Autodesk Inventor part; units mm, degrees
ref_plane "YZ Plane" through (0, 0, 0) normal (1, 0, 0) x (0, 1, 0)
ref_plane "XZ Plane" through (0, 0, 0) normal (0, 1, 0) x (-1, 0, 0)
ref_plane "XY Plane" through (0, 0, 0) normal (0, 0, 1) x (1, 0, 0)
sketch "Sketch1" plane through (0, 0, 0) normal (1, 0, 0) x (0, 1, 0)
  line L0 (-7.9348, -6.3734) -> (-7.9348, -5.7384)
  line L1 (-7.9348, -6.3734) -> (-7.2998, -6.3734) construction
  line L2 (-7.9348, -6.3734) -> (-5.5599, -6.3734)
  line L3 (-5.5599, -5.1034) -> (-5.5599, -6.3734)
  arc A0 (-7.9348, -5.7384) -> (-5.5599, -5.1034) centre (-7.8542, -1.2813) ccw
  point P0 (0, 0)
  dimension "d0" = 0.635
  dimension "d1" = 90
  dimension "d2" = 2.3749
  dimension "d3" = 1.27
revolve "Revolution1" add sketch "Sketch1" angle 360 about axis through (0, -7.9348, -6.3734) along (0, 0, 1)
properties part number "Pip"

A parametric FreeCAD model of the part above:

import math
import FreeCAD as App
import Part
import Sketcher

V = App.Vector
Q = App.Units.Quantity

doc = App.newDocument("Part")
params = doc.addObject("Spreadsheet::Sheet", "Params")
for row, (alias, value) in enumerate([
    ("sketch1_height", "0.05 in"),
    ("sketch1_height2", "0.025 in"),
    ("revolution_angle", "360 deg"),
], start=1):
    params.set(f"A{row}", alias)
    params.set(f"B{row}", "=" + value)
    params.setAlias(f"B{row}", alias)

body = doc.addObject("PartDesign::Body", "Body")

sketch1 = body.newObject("Sketcher::SketchObject", "Sketch")
sketch1.AttachmentSupport = (doc.getObject("YZ_Plane"), [""])
sketch1.MapMode = "FlatFace"
sketch1.addGeometry([
    Part.LineSegment(V(-7.9, -5.7, 0), V(-7.9, -6.4, 0)),
    Part.LineSegment(V(-7.9, -6.4, 0), V(-5.6, -6.4, 0)),
    Part.LineSegment(V(-5.6, -6.4, 0), V(-5.6, -5.1, 0)),
    Part.ArcOfCircle(Part.Circle(V(-7.9, -1.3, 0), V(0, 0, 1), 4.5), math.radians(-91), math.radians(-59)),
], False)
sketch1.addGeometry(Part.LineSegment(V(-7.9, -6.4, 0), V(-7.9, -1.3, 0)), True)
sketch1.addConstraint([
    Sketcher.Constraint("Coincident", 0, 2, 1, 1),
    Sketcher.Constraint("Coincident", 1, 2, 2, 1),
    Sketcher.Constraint("Coincident", 2, 2, 3, 2),
    Sketcher.Constraint("Coincident", 3, 1, 0, 1),
    Sketcher.Constraint("Vertical", 0),
    Sketcher.Constraint("Horizontal", 1),
    Sketcher.Constraint("Vertical", 2),
    Sketcher.Constraint("Vertical", 4),
    Sketcher.Constraint("Coincident", 4, 1, 0, 2),
    Sketcher.Constraint("Horizontal", 3, 3, 4, 2),
    Sketcher.Constraint("DistanceY", 2, 1, 2, 2, Q("0.05 in")),
    Sketcher.Constraint("DistanceY", 0, 2, 0, 1, Q("0.025 in")),
    Sketcher.Constraint("DistanceX", 1, 1, 1, 2, Q("0.0935 in")),
    Sketcher.Constraint("Radius", 3, Q("0.1755 in")),
    Sketcher.Constraint("DistanceX", 0, 2, -1, 1, Q("0.3124 in")),
    Sketcher.Constraint("DistanceY", 3, 3, -1, 1, Q("1.2813 mm")),
])
sketch1.setExpression("Constraints[10]", "Params.sketch1_height")
sketch1.setExpression("Constraints[11]", "Params.sketch1_height2")
revolution = body.newObject("PartDesign::Revolution", "Revolution")
revolution.Profile = sketch1
revolution.ReferenceAxis = (sketch1, ["Axis0"])
revolution.setExpression("Angle", "Params.revolution_angle")

doc.recompute()
